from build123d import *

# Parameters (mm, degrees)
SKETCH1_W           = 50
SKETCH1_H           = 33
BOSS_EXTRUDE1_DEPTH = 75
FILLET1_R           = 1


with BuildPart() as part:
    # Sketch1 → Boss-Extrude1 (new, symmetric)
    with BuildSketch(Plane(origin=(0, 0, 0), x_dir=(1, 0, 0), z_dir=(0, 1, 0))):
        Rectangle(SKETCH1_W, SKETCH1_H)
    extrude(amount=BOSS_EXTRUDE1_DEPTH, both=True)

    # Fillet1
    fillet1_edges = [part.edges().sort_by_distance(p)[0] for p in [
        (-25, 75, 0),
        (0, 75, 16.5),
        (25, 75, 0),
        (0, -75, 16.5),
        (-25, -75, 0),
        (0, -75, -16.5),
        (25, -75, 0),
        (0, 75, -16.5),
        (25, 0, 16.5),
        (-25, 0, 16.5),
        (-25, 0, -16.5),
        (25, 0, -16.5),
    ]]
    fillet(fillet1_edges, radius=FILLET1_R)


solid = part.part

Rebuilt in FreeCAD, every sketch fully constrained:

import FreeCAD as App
import Part
import Sketcher


def add_polygon(sketch, points):
    """Adds a closed chain of lines whose ends are joined by coincident constraints."""
    first, n = sketch.GeometryCount, len(points)
    for a, b in zip(points, points[1:] + points[:1]):
        sketch.addGeometry(Part.LineSegment(App.Vector(*a, 0), App.Vector(*b, 0)), False)
    for i in range(n):
        sketch.addConstraint(Sketcher.Constraint("Coincident", first + i, 2, first + (i + 1) % n, 1))

doc = App.newDocument("Part")
params = doc.addObject("Spreadsheet::Sheet", "Params")
for row, (alias, value) in enumerate([
    ("sketch1_width", "50 mm"),
    ("sketch1_height", "33 mm"),
    ("pad1_length", "150 mm"),
    ("fillet_radius", "1 mm"),
], start=1):
    params.set(f"A{row}", alias)
    params.set(f"B{row}", "=" + value)
    params.setAlias(f"B{row}", alias)

body = doc.addObject("PartDesign::Body", "Body")

sketch1 = body.newObject("Sketcher::SketchObject", "Sketch")
sketch1.AttachmentSupport = (doc.getObject("XZ_Plane"), [""])
sketch1.MapMode = "FlatFace"
add_polygon(sketch1, [(-25, -16), (-25, 16), (25, 16), (25, -16)])
sketch1.addConstraint([
    Sketcher.Constraint("Vertical", 0),
    Sketcher.Constraint("Horizontal", 1),
    Sketcher.Constraint("Vertical", 2),
    Sketcher.Constraint("Horizontal", 3),
    Sketcher.Constraint("Symmetric", 0, 2, 2, 2, -1, 1),
    Sketcher.Constraint("DistanceX", 1, 1, 1, 2, 50.0),
    Sketcher.Constraint("DistanceY", 0, 1, 0, 2, 33.0),
])
sketch1.setExpression("Constraints[9]", "Params.sketch1_width")
sketch1.setExpression("Constraints[10]", "Params.sketch1_height")
pad1 = body.newObject("PartDesign::Pad", "Pad")
pad1.Profile = sketch1
pad1.setExpression("Length", "Params.pad1_length")
pad1.Midplane = True
doc.recompute()

fillet = body.newObject("PartDesign::Fillet", "Fillet")
fillet.Base = (pad1, ["Edge1"])
fillet.UseAllEdges = True
fillet.setExpression("Radius", "Params.fillet_radius")

doc.recompute()
